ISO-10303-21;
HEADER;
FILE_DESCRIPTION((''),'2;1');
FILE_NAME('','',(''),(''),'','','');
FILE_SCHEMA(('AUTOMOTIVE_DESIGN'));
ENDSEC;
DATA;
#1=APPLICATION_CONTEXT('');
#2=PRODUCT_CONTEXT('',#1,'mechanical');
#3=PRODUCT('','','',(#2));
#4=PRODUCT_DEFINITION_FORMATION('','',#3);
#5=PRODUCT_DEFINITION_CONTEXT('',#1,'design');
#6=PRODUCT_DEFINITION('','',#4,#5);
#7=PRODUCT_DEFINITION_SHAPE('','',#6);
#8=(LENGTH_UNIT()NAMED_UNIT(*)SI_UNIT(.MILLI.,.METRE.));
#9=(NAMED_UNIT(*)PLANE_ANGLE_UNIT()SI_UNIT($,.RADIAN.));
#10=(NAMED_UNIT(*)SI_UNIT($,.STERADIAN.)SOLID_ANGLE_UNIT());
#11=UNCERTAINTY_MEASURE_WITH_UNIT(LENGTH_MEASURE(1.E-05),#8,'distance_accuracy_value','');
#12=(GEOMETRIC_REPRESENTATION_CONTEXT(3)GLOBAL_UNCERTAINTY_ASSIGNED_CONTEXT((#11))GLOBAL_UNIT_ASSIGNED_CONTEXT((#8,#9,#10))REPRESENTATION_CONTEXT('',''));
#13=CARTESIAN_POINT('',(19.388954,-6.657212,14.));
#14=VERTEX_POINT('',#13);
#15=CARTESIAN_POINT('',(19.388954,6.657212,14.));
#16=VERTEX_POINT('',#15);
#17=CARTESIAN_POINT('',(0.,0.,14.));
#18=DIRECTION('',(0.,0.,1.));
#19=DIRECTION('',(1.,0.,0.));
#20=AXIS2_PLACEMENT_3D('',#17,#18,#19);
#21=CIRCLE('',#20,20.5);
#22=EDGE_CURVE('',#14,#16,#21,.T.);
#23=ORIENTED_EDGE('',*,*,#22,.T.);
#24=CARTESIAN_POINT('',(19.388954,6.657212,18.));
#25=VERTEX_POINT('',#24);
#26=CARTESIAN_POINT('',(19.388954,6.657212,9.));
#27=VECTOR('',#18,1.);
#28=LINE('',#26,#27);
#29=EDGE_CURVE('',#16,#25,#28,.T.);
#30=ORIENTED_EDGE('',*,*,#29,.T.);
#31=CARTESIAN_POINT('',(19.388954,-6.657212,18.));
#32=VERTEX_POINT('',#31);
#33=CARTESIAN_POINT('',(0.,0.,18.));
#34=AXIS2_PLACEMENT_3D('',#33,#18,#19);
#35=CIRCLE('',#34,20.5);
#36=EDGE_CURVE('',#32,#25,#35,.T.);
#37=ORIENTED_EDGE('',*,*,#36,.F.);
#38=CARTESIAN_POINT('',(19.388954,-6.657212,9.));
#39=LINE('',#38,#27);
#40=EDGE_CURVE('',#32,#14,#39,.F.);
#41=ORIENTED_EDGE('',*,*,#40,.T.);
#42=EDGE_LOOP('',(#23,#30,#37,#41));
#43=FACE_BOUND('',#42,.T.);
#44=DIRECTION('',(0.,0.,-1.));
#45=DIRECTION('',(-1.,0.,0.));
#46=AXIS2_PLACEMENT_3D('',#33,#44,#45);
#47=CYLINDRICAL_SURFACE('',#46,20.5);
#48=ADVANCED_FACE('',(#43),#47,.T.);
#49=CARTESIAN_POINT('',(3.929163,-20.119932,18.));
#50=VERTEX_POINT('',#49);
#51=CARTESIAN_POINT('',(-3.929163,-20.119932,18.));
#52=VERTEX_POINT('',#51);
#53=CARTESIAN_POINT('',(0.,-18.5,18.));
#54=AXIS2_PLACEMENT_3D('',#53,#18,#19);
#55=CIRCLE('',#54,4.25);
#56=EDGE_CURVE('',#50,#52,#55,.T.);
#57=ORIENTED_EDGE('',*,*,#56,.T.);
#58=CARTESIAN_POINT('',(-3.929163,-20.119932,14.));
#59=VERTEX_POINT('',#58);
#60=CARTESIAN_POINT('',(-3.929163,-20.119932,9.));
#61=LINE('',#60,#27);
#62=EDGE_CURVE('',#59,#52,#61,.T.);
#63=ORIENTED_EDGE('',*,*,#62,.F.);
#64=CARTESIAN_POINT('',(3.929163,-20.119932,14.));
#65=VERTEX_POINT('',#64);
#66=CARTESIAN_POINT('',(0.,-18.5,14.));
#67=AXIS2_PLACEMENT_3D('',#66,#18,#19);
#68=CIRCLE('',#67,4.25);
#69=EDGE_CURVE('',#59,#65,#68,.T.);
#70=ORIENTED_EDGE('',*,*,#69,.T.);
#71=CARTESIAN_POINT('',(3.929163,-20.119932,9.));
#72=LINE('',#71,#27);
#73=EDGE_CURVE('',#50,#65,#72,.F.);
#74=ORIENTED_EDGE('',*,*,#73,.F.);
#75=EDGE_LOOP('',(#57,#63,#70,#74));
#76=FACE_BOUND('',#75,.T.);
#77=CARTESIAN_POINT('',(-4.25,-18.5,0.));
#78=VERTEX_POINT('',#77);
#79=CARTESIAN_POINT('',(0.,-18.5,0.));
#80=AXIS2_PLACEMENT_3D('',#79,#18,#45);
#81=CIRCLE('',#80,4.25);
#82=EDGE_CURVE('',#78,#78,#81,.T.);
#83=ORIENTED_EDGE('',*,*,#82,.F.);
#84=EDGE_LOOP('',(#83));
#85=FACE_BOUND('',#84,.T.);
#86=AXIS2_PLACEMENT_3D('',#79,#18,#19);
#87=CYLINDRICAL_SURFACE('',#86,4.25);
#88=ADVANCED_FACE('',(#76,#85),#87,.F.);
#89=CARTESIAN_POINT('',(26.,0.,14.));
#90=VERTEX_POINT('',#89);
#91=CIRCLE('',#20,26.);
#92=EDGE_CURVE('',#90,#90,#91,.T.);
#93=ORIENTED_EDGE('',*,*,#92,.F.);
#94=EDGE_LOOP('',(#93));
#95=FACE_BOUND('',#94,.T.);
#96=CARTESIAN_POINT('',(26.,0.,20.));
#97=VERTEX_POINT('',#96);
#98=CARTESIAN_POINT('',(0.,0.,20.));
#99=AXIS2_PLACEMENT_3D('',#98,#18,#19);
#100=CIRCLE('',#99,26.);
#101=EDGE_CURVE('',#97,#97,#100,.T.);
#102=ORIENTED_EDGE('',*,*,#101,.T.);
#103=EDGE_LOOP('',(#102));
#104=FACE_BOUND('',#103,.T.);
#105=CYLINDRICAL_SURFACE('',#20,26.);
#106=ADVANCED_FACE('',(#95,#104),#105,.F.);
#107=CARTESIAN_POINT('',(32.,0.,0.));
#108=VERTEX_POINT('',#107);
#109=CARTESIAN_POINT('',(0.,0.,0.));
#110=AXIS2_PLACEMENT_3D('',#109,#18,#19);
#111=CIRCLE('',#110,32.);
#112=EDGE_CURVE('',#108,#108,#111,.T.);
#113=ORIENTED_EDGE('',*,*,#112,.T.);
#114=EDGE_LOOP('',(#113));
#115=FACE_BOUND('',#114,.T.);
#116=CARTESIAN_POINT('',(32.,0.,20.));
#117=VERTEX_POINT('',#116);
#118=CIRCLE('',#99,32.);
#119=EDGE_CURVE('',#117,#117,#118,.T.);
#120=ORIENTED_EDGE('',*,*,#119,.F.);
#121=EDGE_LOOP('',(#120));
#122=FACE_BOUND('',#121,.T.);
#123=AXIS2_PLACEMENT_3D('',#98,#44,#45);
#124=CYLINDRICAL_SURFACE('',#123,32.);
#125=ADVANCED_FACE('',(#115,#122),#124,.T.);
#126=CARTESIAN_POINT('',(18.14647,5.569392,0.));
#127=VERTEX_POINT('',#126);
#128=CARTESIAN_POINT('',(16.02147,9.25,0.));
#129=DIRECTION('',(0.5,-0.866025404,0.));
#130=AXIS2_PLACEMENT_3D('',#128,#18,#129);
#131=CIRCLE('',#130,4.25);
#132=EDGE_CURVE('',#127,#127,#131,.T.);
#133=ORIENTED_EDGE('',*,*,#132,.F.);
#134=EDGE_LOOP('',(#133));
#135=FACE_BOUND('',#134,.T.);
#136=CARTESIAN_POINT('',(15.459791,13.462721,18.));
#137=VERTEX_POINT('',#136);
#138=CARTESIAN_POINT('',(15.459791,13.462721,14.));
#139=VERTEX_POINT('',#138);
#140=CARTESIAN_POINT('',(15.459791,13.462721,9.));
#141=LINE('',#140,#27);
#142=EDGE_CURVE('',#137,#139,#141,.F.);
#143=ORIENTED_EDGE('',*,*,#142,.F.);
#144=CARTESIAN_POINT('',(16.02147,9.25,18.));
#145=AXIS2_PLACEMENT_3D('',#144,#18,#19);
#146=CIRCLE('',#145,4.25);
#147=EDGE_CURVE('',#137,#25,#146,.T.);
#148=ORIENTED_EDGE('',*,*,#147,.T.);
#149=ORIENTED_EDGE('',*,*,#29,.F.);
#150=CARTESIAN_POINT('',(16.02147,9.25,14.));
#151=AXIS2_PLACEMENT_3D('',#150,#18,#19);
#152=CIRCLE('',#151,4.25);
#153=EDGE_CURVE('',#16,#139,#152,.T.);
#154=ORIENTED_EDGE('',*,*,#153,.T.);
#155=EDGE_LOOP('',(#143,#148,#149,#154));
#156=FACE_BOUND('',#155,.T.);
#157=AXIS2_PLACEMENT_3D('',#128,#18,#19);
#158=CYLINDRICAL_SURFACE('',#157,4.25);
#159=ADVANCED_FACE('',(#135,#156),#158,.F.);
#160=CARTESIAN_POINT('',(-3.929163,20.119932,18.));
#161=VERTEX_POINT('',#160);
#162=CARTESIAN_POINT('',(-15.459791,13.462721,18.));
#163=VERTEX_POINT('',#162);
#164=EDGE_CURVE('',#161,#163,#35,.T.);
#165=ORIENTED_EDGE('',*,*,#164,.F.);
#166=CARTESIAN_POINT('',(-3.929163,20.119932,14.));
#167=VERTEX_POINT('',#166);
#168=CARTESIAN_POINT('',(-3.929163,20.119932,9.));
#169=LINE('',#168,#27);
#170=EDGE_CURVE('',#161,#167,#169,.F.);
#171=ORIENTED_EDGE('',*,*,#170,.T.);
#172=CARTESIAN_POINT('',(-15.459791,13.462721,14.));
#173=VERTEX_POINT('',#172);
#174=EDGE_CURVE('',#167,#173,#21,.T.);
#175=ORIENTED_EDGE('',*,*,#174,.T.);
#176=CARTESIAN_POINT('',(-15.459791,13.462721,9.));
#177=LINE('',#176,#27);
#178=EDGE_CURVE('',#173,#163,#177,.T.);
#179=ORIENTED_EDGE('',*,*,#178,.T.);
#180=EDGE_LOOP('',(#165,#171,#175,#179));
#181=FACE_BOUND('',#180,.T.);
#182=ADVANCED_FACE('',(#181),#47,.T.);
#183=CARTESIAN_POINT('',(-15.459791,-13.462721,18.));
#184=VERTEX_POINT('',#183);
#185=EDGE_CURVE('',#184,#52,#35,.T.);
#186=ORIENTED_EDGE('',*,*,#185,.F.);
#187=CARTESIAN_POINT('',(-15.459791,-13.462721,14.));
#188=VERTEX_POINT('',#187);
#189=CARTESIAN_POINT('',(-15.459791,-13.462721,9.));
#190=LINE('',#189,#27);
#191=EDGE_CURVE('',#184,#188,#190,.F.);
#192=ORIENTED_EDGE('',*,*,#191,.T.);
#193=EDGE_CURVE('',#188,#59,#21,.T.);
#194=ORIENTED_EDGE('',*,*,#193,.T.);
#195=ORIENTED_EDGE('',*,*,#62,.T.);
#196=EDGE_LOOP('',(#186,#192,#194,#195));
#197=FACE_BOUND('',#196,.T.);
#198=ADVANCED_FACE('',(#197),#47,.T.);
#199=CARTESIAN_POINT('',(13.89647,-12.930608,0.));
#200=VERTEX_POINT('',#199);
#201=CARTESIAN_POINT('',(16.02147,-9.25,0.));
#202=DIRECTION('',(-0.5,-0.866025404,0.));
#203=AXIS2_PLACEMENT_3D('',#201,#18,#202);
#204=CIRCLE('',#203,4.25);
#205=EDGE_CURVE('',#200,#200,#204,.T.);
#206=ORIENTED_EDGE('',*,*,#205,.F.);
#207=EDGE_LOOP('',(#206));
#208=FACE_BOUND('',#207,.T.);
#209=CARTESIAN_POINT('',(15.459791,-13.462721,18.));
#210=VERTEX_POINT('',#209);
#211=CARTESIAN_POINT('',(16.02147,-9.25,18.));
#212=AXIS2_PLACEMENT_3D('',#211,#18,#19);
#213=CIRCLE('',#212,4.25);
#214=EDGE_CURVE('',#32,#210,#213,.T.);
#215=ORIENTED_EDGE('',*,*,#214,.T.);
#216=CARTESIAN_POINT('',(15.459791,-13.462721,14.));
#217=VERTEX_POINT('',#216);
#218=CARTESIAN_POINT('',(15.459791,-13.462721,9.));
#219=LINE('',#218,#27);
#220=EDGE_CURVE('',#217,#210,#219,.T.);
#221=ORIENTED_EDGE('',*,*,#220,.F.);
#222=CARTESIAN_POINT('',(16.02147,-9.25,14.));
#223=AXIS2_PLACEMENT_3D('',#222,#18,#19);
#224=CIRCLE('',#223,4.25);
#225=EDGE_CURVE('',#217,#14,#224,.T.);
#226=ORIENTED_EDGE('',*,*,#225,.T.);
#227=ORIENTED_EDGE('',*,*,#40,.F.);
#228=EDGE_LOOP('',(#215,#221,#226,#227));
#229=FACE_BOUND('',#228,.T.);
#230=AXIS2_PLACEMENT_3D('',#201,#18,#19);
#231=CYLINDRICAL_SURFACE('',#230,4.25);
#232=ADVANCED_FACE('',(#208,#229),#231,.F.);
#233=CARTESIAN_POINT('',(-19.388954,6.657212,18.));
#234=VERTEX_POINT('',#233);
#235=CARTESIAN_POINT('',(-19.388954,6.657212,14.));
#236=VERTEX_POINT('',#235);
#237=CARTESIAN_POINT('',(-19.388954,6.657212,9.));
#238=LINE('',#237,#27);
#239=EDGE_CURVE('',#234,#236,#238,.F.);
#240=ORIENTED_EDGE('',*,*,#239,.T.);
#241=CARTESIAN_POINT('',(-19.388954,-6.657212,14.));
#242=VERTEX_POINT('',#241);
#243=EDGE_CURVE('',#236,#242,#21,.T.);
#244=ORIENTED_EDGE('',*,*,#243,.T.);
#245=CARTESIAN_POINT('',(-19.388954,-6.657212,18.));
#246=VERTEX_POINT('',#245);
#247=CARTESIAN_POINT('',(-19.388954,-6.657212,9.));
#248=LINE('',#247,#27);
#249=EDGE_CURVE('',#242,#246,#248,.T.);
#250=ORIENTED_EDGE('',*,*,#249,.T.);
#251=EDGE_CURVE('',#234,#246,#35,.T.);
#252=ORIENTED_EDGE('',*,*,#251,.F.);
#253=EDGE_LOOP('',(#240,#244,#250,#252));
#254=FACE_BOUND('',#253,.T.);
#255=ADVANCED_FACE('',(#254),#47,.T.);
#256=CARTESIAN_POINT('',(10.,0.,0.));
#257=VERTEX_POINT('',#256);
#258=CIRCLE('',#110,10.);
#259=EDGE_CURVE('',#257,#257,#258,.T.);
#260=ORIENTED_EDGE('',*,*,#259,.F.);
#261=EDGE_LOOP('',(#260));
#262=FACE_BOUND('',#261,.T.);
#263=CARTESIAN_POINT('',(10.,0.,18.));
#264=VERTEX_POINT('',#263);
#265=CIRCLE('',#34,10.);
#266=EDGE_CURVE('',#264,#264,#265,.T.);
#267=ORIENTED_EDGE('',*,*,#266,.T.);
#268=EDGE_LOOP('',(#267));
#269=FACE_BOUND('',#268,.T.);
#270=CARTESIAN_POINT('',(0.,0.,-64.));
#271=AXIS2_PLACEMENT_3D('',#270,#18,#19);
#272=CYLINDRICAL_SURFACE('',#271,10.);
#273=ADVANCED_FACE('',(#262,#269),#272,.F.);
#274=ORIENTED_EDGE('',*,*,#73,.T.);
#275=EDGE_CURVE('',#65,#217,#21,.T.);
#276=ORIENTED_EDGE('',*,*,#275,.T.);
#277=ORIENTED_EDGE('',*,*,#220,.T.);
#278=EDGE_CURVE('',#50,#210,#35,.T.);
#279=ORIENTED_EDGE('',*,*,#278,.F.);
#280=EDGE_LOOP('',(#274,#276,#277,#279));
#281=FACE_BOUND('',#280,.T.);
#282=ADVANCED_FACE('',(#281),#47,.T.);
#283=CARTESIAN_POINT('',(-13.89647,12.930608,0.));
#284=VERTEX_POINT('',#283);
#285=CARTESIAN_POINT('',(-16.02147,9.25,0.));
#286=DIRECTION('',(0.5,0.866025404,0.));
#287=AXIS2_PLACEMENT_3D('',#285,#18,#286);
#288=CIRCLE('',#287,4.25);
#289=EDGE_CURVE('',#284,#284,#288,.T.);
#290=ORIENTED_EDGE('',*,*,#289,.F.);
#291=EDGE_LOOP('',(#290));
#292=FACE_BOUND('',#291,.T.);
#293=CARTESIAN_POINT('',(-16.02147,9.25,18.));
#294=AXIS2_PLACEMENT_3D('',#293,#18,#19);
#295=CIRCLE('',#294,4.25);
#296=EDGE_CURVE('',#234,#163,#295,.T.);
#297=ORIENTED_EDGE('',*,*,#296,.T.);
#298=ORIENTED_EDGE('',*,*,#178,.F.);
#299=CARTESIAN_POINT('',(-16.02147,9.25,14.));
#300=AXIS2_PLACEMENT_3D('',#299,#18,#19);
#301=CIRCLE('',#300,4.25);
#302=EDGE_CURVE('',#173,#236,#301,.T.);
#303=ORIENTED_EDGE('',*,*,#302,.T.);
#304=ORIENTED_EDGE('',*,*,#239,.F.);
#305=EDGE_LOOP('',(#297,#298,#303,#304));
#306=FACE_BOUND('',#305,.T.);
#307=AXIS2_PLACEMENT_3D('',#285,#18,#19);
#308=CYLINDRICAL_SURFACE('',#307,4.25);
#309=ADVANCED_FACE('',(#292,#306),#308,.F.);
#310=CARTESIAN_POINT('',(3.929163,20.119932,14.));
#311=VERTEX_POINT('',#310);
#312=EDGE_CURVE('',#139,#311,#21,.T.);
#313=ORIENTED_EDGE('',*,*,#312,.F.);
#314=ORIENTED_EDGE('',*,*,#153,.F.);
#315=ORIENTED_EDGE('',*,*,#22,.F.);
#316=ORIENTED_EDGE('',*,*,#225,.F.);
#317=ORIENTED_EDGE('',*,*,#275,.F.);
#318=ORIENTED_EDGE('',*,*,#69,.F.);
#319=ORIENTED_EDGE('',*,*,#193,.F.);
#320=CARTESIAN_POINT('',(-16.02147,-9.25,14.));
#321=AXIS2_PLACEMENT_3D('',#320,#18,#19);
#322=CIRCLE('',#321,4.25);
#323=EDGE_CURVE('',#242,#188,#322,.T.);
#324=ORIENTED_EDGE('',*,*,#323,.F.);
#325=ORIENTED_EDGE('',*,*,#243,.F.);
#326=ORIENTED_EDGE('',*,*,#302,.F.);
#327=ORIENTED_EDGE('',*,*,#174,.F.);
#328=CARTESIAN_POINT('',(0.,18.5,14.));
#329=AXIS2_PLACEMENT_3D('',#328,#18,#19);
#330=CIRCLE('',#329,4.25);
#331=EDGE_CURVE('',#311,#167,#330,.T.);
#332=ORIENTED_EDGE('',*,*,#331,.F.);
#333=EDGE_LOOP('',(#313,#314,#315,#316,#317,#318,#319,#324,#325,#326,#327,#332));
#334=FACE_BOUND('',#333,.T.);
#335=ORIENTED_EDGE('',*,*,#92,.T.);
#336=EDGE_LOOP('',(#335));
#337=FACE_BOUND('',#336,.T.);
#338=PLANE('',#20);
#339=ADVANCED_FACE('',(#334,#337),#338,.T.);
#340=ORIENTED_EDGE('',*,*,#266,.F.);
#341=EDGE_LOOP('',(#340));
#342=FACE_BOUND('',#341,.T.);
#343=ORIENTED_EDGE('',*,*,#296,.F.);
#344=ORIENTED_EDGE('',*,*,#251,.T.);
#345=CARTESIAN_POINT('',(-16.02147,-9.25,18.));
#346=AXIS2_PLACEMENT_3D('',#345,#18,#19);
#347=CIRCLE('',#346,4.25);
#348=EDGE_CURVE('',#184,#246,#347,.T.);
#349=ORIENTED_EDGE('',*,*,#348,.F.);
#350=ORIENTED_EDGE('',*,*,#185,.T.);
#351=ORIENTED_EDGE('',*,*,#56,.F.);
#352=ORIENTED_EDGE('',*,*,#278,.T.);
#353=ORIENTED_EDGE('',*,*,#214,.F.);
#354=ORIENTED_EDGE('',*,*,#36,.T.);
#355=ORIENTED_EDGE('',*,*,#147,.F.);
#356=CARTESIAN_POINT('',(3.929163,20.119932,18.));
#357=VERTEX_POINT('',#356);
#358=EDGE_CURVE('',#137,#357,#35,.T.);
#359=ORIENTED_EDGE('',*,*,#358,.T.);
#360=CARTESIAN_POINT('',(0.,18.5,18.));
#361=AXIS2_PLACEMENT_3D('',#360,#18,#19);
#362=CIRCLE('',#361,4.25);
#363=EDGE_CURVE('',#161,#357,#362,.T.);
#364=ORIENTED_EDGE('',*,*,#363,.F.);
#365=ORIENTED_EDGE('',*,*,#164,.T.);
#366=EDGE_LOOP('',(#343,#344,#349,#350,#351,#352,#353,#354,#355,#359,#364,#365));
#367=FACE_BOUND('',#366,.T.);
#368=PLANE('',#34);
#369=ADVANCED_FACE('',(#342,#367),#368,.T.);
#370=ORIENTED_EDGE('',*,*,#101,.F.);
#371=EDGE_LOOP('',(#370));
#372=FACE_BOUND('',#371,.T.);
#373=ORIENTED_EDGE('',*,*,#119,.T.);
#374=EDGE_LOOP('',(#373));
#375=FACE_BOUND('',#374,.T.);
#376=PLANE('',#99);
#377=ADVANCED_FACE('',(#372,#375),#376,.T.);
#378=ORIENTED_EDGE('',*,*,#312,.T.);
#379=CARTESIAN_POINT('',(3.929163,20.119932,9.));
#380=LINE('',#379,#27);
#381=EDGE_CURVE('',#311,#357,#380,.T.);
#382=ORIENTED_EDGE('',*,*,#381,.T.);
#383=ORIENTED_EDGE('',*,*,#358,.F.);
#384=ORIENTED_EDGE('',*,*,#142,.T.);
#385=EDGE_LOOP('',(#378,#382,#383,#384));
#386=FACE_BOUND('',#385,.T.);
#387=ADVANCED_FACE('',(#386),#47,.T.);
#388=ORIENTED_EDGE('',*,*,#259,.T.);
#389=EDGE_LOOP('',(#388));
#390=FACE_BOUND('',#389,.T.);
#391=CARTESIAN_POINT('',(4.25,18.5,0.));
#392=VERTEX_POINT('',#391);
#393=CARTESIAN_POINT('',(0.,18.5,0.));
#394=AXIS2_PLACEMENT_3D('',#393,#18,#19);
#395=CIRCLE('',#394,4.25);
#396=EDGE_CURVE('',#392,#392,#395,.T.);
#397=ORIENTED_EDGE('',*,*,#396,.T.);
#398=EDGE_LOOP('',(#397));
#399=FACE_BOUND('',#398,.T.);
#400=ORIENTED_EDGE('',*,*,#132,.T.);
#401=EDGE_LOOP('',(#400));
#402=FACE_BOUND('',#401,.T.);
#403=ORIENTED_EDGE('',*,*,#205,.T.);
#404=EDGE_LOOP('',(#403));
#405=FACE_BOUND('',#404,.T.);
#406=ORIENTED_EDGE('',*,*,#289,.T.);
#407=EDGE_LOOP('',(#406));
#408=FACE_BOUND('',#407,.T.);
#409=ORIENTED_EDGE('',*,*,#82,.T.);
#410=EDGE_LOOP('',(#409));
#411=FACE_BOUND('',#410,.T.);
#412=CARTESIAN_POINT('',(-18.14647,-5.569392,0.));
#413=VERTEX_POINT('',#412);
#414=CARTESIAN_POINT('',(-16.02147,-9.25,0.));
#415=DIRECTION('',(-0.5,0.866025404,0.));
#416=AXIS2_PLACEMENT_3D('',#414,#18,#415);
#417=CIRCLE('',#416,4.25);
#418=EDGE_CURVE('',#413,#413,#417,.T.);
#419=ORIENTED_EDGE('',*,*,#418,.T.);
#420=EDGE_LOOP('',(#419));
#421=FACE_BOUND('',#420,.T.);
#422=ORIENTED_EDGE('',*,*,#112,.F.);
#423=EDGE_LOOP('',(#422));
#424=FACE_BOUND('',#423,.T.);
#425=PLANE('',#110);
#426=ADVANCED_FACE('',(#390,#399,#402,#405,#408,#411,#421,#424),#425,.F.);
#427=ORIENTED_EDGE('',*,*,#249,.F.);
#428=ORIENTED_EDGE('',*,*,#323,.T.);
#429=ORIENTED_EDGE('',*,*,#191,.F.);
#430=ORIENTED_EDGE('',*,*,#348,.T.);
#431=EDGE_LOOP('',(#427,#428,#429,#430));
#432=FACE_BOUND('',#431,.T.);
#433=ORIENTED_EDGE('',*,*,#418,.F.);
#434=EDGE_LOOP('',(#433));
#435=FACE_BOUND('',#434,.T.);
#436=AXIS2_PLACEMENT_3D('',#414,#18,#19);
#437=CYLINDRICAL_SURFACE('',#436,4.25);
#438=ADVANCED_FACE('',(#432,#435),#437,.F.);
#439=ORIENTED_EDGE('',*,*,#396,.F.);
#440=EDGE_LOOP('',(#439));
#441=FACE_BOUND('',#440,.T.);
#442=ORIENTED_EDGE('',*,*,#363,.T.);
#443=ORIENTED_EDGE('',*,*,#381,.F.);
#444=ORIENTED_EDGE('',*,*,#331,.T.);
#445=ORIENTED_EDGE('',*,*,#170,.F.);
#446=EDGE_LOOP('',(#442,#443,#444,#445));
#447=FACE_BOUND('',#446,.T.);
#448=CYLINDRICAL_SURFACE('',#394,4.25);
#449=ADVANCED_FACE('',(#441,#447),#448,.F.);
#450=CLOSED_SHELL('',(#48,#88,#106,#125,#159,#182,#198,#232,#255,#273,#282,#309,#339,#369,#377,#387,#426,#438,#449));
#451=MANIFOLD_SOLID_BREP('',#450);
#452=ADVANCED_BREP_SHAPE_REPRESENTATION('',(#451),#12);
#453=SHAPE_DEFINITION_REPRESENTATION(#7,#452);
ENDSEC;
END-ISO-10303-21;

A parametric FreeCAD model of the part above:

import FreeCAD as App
import Part
import Sketcher
from FreeCAD import Vector
Q = App.Units.Quantity

doc = App.newDocument("Part")
body = doc.addObject("PartDesign::Body", "Body")

# Sketch on XY plane
sketch1 = body.newObject("Sketcher::SketchObject", "Sketch")
sketch1.AttachmentSupport = (doc.getObject("XY_Plane"), [""])
sketch1.MapMode = "FlatFace"
sketch1.addGeometry(Part.Circle(Vector(0, 0, 0), Vector(0, 0, 1), 32), False)
sketch1.addConstraint([
    Sketcher.Constraint("Coincident", 0, 3, -1, 1),
    Sketcher.Constraint("Diameter", 0, Q("64 mm")),
])
pad1 = body.newObject("PartDesign::Pad", "Pad")
pad1.Profile = sketch1
pad1.Length = 20

# Sketch on XY plane
sketch2 = body.newObject("Sketcher::SketchObject", "Sketch001")
sketch2.AttachmentSupport = (doc.getObject("XY_Plane"), [""])
sketch2.MapMode = "FlatFace"
sketch2.AttachmentOffset = App.Placement(Vector(0, 0, 20), App.Rotation())
sketch2.addGeometry(Part.Circle(Vector(0, 0, 0), Vector(0, 0, 1), 26), False)
sketch2.addConstraint([
    Sketcher.Constraint("Coincident", 0, 3, -1, 1),
    Sketcher.Constraint("Diameter", 0, Q("52 mm")),
])
pocket1 = body.newObject("PartDesign::Pocket", "Pocket")
pocket1.Profile = sketch2
pocket1.Length = 6

# Sketch on XY plane
sketch3 = body.newObject("Sketcher::SketchObject", "Sketch002")
sketch3.AttachmentSupport = (doc.getObject("XY_Plane"), [""])
sketch3.MapMode = "FlatFace"
sketch3.AttachmentOffset = App.Placement(Vector(0, 0, 14), App.Rotation())
sketch3.addGeometry(Part.Circle(Vector(0, 0, 0), Vector(0, 0, 1), 20.5), False)
sketch3.addConstraint([
    Sketcher.Constraint("Coincident", 0, 3, -1, 1),
    Sketcher.Constraint("Diameter", 0, Q("41 mm")),
])
pad2 = body.newObject("PartDesign::Pad", "Pad001")
pad2.Profile = sketch3
pad2.Length = 4

# Sketch on XY plane
sketch4 = body.newObject("Sketcher::SketchObject", "Sketch003")
sketch4.AttachmentSupport = (doc.getObject("XY_Plane"), [""])
sketch4.MapMode = "FlatFace"
sketch4.AttachmentOffset = App.Placement(Vector(0, 0, 18), App.Rotation())
sketch4.addGeometry(Part.Circle(Vector(0, 0, 0), Vector(0, 0, 1), 10), False)
sketch4.addConstraint([
    Sketcher.Constraint("Coincident", 0, 3, -1, 1),
    Sketcher.Constraint("Diameter", 0, Q("20 mm")),
])
pocket2 = body.newObject("PartDesign::Pocket", "Pocket001")
pocket2.Profile = sketch4
pocket2.Length = 82

# Sketch on XY plane
sketch5 = body.newObject("Sketcher::SketchObject", "Sketch004")
sketch5.AttachmentSupport = (doc.getObject("XY_Plane"), [""])
sketch5.MapMode = "FlatFace"
sketch5.AttachmentOffset = App.Placement(Vector(0, 0, 18), App.Rotation())
sketch5.addGeometry(Part.Circle(Vector(0, 18.5, 0), Vector(0, 0, 1), 4.25), False)
sketch5.addConstraint([
    Sketcher.Constraint("PointOnObject", 0, 3, -2),
    Sketcher.Constraint("Diameter", 0, Q("8.5 mm")),
    Sketcher.Constraint("DistanceY", -1, 1, 0, 3, Q("18.5 mm")),
])
pocket3 = body.newObject("PartDesign::Pocket", "Pocket002")
pocket3.Profile = sketch5
pocket3.Type = "ThroughAll"
doc.recompute()

polarpattern = body.newObject("PartDesign::PolarPattern", "PolarPattern")
polarpattern.Originals = [pocket3]
polarpattern.Axis = (doc.getObject("Z_Axis"), [""])
polarpattern.Angle = 360
polarpattern.Occurrences = 6
body.Tip = polarpattern

doc.recompute()
